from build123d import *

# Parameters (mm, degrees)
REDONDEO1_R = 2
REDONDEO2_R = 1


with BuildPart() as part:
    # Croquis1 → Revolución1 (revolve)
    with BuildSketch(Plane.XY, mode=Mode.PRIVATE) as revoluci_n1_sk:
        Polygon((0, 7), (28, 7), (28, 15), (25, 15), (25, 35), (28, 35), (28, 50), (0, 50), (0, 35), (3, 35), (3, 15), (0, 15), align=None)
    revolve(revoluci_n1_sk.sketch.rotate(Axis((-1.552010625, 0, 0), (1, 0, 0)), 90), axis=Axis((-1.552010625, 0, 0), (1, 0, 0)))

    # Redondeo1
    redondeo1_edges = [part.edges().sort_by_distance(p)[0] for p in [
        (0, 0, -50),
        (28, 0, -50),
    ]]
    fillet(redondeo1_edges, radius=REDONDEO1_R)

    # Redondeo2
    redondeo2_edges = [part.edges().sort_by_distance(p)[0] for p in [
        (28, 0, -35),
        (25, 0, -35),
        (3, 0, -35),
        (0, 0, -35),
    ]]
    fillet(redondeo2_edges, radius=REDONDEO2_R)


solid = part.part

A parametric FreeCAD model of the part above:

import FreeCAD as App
import Part
import Sketcher


def edges_at(feature, points):
    """Names of the edges that pass closest to the given points."""
    edges = feature.Shape.Edges
    near = lambda p: min(range(len(edges)), key=lambda i: edges[i].distToShape(Part.Vertex(*p))[0])
    return sorted({f"Edge{near(p) + 1}" for p in points})


def add_polygon(sketch, points):
    """Adds a closed chain of lines whose ends are joined by coincident constraints."""
    first, n = sketch.GeometryCount, len(points)
    for a, b in zip(points, points[1:] + points[:1]):
        sketch.addGeometry(Part.LineSegment(App.Vector(*a, 0), App.Vector(*b, 0)), False)
    for i in range(n):
        sketch.addConstraint(Sketcher.Constraint("Coincident", first + i, 2, first + (i + 1) % n, 1))

doc = App.newDocument("Part")
body = doc.addObject("PartDesign::Body", "Body")

sketch1 = doc.addObject("Sketcher::SketchObject", "Sketch")
body.addObject(sketch1)
sketch1.AttachmentSupport = (doc.XY_Plane, [""])
sketch1.MapMode = "FlatFace"
add_polygon(sketch1, [(0, 7), (28, 7), (28, 15), (25, 15), (25, 35), (28, 35), (28, 50), (0, 50), (0, 35), (3, 35), (3, 15), (0, 15)])
sketch1.addConstraint([
    Sketcher.Constraint("Horizontal", 0),
    Sketcher.Constraint("Vertical", 1),
    Sketcher.Constraint("Horizontal", 2),
    Sketcher.Constraint("Vertical", 3),
    Sketcher.Constraint("Horizontal", 4),
    Sketcher.Constraint("Vertical", 5),
    Sketcher.Constraint("Horizontal", 6),
    Sketcher.Constraint("Vertical", 7),
    Sketcher.Constraint("Horizontal", 8),
    Sketcher.Constraint("Vertical", 9),
    Sketcher.Constraint("Horizontal", 10),
    Sketcher.Constraint("Vertical", 11),
    Sketcher.Constraint("PointOnObject", 6, 2, -2),
    Sketcher.Constraint("PointOnObject", 10, 2, -2),
    Sketcher.Constraint("Horizontal", 4, 2, 7, 2),
    Sketcher.Constraint("Horizontal", 2, 2, 9, 2),
    Sketcher.Constraint("Vertical", 1, 2, 4, 2),
    Sketcher.Constraint("Equal", 4, 8),
    Sketcher.Constraint("DistanceX", 0, 1, 0, 2, 28.0),
    Sketcher.Constraint("DistanceX", 2, 2, 2, 1, 3.0),
    Sketcher.Constraint("DistanceY", 1, 1, 1, 2, 8.0),
    Sketcher.Constraint("DistanceY", 3, 1, 3, 2, 20.0),
    Sketcher.Constraint("DistanceY", 5, 1, 5, 2, 15.0),
    Sketcher.Constraint("DistanceY", -1, 1, 0, 2, 7.0),
])
revolution = doc.addObject("PartDesign::Revolution", "Revolution")
body.addObject(revolution)
revolution.Profile = sketch1
revolution.ReferenceAxis = (sketch1, ["H_Axis"])
revolution.Angle = 360
doc.recompute()

fillet = doc.addObject("PartDesign::Fillet", "Fillet")
body.addObject(fillet)
fillet.Base = (revolution, edges_at(revolution, [(0, 0, -50), (28, 0, -50)]))
fillet.Radius = 2
doc.recompute()

fillet2 = doc.addObject("PartDesign::Fillet", "Fillet001")
body.addObject(fillet2)
fillet2.Base = (fillet, edges_at(fillet, [
    (28, 0, -35),
    (25, 0, -35),
    (3, 0, -35),
    (0, 0, -35),
]))
fillet2.Radius = 1

doc.recompute()
